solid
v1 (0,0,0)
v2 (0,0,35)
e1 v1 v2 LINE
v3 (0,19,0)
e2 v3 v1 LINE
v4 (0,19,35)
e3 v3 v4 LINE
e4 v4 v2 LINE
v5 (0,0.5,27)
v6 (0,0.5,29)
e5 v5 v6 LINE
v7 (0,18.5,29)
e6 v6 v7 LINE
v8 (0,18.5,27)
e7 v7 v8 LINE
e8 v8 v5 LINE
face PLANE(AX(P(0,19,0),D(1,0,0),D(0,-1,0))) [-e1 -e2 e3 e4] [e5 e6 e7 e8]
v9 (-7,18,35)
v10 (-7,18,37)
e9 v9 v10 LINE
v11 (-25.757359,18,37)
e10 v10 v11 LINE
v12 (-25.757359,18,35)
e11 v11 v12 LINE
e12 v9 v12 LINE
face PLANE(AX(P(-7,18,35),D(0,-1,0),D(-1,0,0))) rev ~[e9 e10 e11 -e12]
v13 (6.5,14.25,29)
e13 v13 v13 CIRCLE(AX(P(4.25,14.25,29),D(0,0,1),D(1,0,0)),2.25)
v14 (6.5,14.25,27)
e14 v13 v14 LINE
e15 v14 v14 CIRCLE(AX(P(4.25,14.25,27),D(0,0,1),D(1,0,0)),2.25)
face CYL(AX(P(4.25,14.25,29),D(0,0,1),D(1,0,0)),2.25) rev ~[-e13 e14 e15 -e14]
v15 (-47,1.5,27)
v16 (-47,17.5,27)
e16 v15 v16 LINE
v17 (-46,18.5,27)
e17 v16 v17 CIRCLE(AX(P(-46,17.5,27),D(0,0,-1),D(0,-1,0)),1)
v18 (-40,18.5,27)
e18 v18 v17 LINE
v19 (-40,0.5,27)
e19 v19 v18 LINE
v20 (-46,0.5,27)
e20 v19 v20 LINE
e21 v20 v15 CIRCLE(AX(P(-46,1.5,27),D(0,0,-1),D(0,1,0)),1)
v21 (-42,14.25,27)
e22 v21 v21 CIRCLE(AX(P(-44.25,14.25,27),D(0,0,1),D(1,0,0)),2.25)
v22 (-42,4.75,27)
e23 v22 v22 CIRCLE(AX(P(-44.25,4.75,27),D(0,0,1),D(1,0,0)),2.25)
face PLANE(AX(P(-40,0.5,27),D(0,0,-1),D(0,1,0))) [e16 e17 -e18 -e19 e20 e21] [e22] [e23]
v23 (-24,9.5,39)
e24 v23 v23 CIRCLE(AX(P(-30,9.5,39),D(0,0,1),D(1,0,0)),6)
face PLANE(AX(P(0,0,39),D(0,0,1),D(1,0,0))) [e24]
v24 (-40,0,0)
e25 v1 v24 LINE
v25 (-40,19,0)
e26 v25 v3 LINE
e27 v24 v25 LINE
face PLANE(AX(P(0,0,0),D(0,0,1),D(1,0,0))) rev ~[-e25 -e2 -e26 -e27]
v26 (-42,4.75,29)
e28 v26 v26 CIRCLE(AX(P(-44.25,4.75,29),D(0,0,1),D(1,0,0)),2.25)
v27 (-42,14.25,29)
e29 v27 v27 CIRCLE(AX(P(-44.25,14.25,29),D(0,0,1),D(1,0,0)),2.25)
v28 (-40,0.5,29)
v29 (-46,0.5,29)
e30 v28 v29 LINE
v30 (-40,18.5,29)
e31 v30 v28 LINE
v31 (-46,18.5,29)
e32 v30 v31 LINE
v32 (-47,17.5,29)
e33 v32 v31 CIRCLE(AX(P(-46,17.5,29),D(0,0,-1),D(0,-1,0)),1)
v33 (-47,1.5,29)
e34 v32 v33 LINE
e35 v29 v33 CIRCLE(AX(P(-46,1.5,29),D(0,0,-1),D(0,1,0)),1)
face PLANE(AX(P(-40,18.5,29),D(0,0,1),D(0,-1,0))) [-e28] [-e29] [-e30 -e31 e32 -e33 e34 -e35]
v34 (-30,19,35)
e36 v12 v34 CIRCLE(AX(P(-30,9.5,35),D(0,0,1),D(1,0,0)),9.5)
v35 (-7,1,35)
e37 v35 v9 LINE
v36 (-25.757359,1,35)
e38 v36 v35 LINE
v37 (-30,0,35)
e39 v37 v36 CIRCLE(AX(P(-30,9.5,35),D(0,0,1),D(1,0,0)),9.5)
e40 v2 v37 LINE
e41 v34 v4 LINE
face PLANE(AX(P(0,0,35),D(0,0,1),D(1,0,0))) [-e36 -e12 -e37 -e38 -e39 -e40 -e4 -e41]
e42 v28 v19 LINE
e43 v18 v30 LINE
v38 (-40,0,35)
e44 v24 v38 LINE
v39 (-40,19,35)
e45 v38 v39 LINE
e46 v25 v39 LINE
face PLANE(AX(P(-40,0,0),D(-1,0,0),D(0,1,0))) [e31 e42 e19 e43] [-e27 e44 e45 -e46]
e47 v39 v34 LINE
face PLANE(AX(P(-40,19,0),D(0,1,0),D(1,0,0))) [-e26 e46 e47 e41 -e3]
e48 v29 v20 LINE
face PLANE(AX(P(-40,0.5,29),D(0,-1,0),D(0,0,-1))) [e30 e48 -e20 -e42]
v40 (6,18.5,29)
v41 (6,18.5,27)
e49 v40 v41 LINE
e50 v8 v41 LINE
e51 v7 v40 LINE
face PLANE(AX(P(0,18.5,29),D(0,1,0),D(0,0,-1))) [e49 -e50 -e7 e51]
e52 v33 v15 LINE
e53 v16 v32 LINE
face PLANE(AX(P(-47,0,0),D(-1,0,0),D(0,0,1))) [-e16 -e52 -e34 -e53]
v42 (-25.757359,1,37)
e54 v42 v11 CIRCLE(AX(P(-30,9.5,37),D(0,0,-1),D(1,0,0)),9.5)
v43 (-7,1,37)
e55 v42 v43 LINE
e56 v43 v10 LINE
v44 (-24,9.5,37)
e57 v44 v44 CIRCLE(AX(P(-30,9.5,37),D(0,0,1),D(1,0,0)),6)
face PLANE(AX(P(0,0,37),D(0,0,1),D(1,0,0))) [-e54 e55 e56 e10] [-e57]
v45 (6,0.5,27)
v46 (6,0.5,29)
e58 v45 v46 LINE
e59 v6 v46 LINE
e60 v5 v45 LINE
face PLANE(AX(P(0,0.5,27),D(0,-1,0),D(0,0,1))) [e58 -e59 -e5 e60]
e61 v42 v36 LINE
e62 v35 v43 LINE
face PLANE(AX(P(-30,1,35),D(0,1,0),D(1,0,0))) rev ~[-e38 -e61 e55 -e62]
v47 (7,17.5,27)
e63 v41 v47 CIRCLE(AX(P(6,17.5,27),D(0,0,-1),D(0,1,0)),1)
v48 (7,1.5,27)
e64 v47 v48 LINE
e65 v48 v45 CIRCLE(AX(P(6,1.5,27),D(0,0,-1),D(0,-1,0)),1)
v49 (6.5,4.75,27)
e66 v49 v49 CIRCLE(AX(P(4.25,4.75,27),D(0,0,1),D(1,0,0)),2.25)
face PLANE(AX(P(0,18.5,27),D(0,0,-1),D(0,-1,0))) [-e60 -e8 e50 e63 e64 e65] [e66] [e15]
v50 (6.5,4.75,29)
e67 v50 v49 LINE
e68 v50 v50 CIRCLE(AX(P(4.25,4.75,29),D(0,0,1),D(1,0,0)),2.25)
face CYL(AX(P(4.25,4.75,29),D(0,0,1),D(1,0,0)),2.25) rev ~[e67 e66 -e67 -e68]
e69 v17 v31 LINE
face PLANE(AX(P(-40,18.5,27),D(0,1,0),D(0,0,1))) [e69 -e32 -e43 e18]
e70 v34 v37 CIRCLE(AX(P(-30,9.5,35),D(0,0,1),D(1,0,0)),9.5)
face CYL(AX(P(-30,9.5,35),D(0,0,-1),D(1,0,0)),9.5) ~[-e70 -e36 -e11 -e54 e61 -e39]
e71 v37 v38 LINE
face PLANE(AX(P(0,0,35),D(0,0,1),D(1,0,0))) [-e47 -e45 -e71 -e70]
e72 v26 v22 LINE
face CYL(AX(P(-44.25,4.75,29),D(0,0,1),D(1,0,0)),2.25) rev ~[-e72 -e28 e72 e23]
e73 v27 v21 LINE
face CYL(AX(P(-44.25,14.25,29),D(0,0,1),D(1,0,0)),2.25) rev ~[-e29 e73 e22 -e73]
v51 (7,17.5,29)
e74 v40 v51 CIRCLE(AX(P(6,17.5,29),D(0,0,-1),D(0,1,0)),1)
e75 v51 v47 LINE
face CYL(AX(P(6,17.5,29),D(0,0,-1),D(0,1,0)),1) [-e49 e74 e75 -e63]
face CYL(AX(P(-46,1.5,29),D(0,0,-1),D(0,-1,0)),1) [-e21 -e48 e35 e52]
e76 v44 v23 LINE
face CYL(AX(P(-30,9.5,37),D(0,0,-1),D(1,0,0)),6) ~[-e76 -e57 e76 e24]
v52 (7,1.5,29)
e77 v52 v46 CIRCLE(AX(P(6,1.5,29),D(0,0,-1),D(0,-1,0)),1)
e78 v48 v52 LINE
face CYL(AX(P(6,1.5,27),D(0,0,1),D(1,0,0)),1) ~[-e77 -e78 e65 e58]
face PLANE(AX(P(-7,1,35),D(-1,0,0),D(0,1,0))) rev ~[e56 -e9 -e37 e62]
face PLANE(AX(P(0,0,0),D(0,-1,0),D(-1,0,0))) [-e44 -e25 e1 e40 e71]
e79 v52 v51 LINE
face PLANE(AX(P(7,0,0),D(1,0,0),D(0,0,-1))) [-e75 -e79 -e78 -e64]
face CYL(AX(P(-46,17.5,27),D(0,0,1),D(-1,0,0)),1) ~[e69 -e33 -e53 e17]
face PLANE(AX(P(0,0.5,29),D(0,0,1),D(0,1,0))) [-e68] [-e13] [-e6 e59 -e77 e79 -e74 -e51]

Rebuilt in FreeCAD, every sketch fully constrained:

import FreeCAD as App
import Part
import Sketcher
from FreeCAD import Vector


def edges_at(feature, points):
    """Names of the edges that pass closest to the given points."""
    edges = feature.Shape.Edges
    near = lambda p: min(range(len(edges)), key=lambda i: edges[i].distToShape(Part.Vertex(*p))[0])
    return sorted({f"Edge{near(p) + 1}" for p in points})

doc = App.newDocument("Part")
params = doc.addObject("Spreadsheet::Sheet", "Params")
for row, (alias, value) in enumerate([
    ("sketch1_width", "40 mm"),
    ("sketch1_height", "19 mm"),
    ("pad1_length", "35 mm"),
    ("sketch2_diameter", "19 mm"),
    ("pad2_length", "2 mm"),
    ("sketch3_height", "17 mm"),
    ("sketch3_width", "23 mm"),
    ("pad3_length", "2 mm"),
    ("sketch4_diameter", "12 mm"),
    ("pad4_length", "2 mm"),
    ("sketch5_width", "18 mm"),
    ("sketch5_height", "2 mm"),
    ("pad5_length", "7 mm"),
    ("sketch6_diameter", "4.5 mm"),
    ("pocket1_length", "2 mm"),
    ("sketch7_diameter", "4.5 mm"),
    ("pocket2_length", "2 mm"),
    ("fillet_radius", "1 mm"),
    ("fillet2_radius", "1 mm"),
    ("sketch8_width", "18 mm"),
    ("sketch8_height", "2 mm"),
    ("pad6_length", "7 mm"),
    ("sketch9_diameter", "4.5 mm"),
    ("pocket3_length", "2 mm"),
    ("sketch10_diameter", "4.5 mm"),
    ("pocket4_length", "2 mm"),
    ("fillet3_radius", "1 mm"),
    ("fillet4_radius", "1 mm"),
], start=1):
    params.set(f"A{row}", alias)
    params.set(f"B{row}", "=" + value)
    params.setAlias(f"B{row}", alias)

body = doc.addObject("PartDesign::Body", "Body")

# Sketch on XY plane
sketch1 = doc.addObject("Sketcher::SketchObject", "Sketch")
body.addObject(sketch1)
sketch1.AttachmentSupport = (doc.XY_Plane, [""])
sketch1.MapMode = "FlatFace"
sketch1.addGeometry([
    Part.LineSegment(Vector(-40, 0, 0), Vector(0, 0, 0)),
    Part.LineSegment(Vector(0, 0, 0), Vector(0, 19, 0)),
    Part.LineSegment(Vector(0, 19, 0), Vector(-40, 19, 0)),
    Part.LineSegment(Vector(-40, 19, 0), Vector(-40, 0, 0)),
], False)
sketch1.addConstraint([
    Sketcher.Constraint("Coincident", 0, 2, 1, 1),
    Sketcher.Constraint("Coincident", 1, 2, 2, 1),
    Sketcher.Constraint("Coincident", 2, 2, 3, 1),
    Sketcher.Constraint("Coincident", 3, 2, 0, 1),
    Sketcher.Constraint("Horizontal", 0),
    Sketcher.Constraint("Vertical", 1),
    Sketcher.Constraint("Horizontal", 2),
    Sketcher.Constraint("Vertical", 3),
    Sketcher.Constraint("Coincident", 0, 2, -1, 1),
    Sketcher.Constraint("DistanceX", 0, 1, 0, 2, 40.0),
    Sketcher.Constraint("DistanceY", 1, 1, 1, 2, 19.0),
])
sketch1.setExpression("Constraints[9]", "Params.sketch1_width")
sketch1.setExpression("Constraints[10]", "Params.sketch1_height")
pad1 = doc.addObject("PartDesign::Pad", "Pad")
body.addObject(pad1)
pad1.Profile = sketch1
pad1.setExpression("Length", "Params.pad1_length")

# Sketch on XY plane
sketch2 = doc.addObject("Sketcher::SketchObject", "Sketch001")
body.addObject(sketch2)
sketch2.AttachmentSupport = (doc.XY_Plane, [""])
sketch2.MapMode = "FlatFace"
sketch2.AttachmentOffset = App.Placement(Vector(0, 0, 35), App.Rotation())
sketch2.addGeometry(Part.Circle(Vector(-30, 9.5, 0), Vector(0, 0, 1), 9.5), False)
sketch2.addConstraint([
    Sketcher.Constraint("Diameter", 0, 19.0),
    Sketcher.Constraint("DistanceX", 0, 3, -1, 1, 30.0),
    Sketcher.Constraint("DistanceY", -1, 1, 0, 3, 9.5),
])
sketch2.setExpression("Constraints[0]", "Params.sketch2_diameter")
pad2 = doc.addObject("PartDesign::Pad", "Pad001")
body.addObject(pad2)
pad2.Profile = sketch2
pad2.setExpression("Length", "Params.pad2_length")

# Sketch on XY plane
sketch3 = doc.addObject("Sketcher::SketchObject", "Sketch002")
body.addObject(sketch3)
sketch3.AttachmentSupport = (doc.XY_Plane, [""])
sketch3.MapMode = "FlatFace"
sketch3.AttachmentOffset = App.Placement(Vector(0, 0, 35), App.Rotation())
sketch3.addGeometry([
    Part.LineSegment(Vector(-30, 1, 0), Vector(-7, 1, 0)),
    Part.LineSegment(Vector(-7, 1, 0), Vector(-7, 18, 0)),
    Part.LineSegment(Vector(-7, 18, 0), Vector(-30, 18, 0)),
    Part.LineSegment(Vector(-30, 18, 0), Vector(-30, 1, 0)),
], False)
sketch3.addConstraint([
    Sketcher.Constraint("Coincident", 0, 2, 1, 1),
    Sketcher.Constraint("Coincident", 1, 2, 2, 1),
    Sketcher.Constraint("Coincident", 2, 2, 3, 1),
    Sketcher.Constraint("Coincident", 3, 2, 0, 1),
    Sketcher.Constraint("Horizontal", 0),
    Sketcher.Constraint("Vertical", 1),
    Sketcher.Constraint("Horizontal", 2),
    Sketcher.Constraint("Vertical", 3),
    Sketcher.Constraint("DistanceY", 1, 1, 1, 2, 17.0),
    Sketcher.Constraint("DistanceX", 0, 1, 0, 2, 23.0),
    Sketcher.Constraint("DistanceX", 0, 2, -1, 1, 7.0),
    Sketcher.Constraint("DistanceY", -1, 1, 0, 2, 1.0),
])
sketch3.setExpression("Constraints[8]", "Params.sketch3_height")
sketch3.setExpression("Constraints[9]", "Params.sketch3_width")
pad3 = doc.addObject("PartDesign::Pad", "Pad002")
body.addObject(pad3)
pad3.Profile = sketch3
pad3.setExpression("Length", "Params.pad3_length")

# Sketch on XY plane
sketch4 = doc.addObject("Sketcher::SketchObject", "Sketch003")
body.addObject(sketch4)
sketch4.AttachmentSupport = (doc.XY_Plane, [""])
sketch4.MapMode = "FlatFace"
sketch4.AttachmentOffset = App.Placement(Vector(0, 0, 37), App.Rotation())
sketch4.addGeometry(Part.Circle(Vector(-30, 9.5, 0), Vector(0, 0, 1), 6), False)
sketch4.addConstraint([
    Sketcher.Constraint("Diameter", 0, 12.0),
    Sketcher.Constraint("DistanceX", 0, 3, -1, 1, 30.0),
    Sketcher.Constraint("DistanceY", -1, 1, 0, 3, 9.5),
])
sketch4.setExpression("Constraints[0]", "Params.sketch4_diameter")
pad4 = doc.addObject("PartDesign::Pad", "Pad003")
body.addObject(pad4)
pad4.Profile = sketch4
pad4.setExpression("Length", "Params.pad4_length")

# Sketch on YZ plane
sketch5 = doc.addObject("Sketcher::SketchObject", "Sketch004")
body.addObject(sketch5)
sketch5.AttachmentSupport = (doc.YZ_Plane, [""])
sketch5.MapMode = "FlatFace"
sketch5.AttachmentOffset = App.Placement(Vector(0, 0, -40), App.Rotation())
sketch5.addGeometry([
    Part.LineSegment(Vector(18.5, 29, 0), Vector(18.5, 27, 0)),
    Part.LineSegment(Vector(18.5, 27, 0), Vector(0.5, 27, 0)),
    Part.LineSegment(Vector(0.5, 27, 0), Vector(0.5, 29, 0)),
    Part.LineSegment(Vector(0.5, 29, 0), Vector(18.5, 29, 0)),
], False)
sketch5.addConstraint([
    Sketcher.Constraint("Coincident", 0, 2, 1, 1),
    Sketcher.Constraint("Coincident", 1, 2, 2, 1),
    Sketcher.Constraint("Coincident", 2, 2, 3, 1),
    Sketcher.Constraint("Coincident", 3, 2, 0, 1),
    Sketcher.Constraint("Vertical", 0),
    Sketcher.Constraint("Horizontal", 1),
    Sketcher.Constraint("Vertical", 2),
    Sketcher.Constraint("Horizontal", 3),
    Sketcher.Constraint("DistanceX", 1, 2, 1, 1, 18.0),
    Sketcher.Constraint("DistanceY", 0, 2, 0, 1, 2.0),
    Sketcher.Constraint("DistanceY", -1, 1, 0, 2, 27.0),
    Sketcher.Constraint("DistanceX", -1, 1, 0, 2, 18.5),
])
sketch5.setExpression("Constraints[8]", "Params.sketch5_width")
sketch5.setExpression("Constraints[9]", "Params.sketch5_height")
pad5 = doc.addObject("PartDesign::Pad", "Pad004")
body.addObject(pad5)
pad5.Profile = sketch5
pad5.setExpression("Length", "Params.pad5_length")
pad5.Reversed = True

# Sketch on XY plane
sketch6 = doc.addObject("Sketcher::SketchObject", "Sketch005")
body.addObject(sketch6)
sketch6.AttachmentSupport = (doc.XY_Plane, [""])
sketch6.MapMode = "FlatFace"
sketch6.AttachmentOffset = App.Placement(Vector(0, 0, 29), App.Rotation())
sketch6.addGeometry(Part.Circle(Vector(-44.25, 4.75, 0), Vector(0, 0, 1), 2.25), False)
sketch6.addConstraint([
    Sketcher.Constraint("Diameter", 0, 4.5),
    Sketcher.Constraint("DistanceX", 0, 3, -1, 1, 44.25),
    Sketcher.Constraint("DistanceY", -1, 1, 0, 3, 4.75),
])
sketch6.setExpression("Constraints[0]", "Params.sketch6_diameter")
pocket1 = doc.addObject("PartDesign::Pocket", "Pocket")
body.addObject(pocket1)
pocket1.Profile = sketch6
pocket1.setExpression("Length", "Params.pocket1_length")

# Sketch on XY plane
sketch7 = doc.addObject("Sketcher::SketchObject", "Sketch006")
body.addObject(sketch7)
sketch7.AttachmentSupport = (doc.XY_Plane, [""])
sketch7.MapMode = "FlatFace"
sketch7.AttachmentOffset = App.Placement(Vector(0, 0, 29), App.Rotation())
sketch7.addGeometry(Part.Circle(Vector(-44.25, 14.25, 0), Vector(0, 0, 1), 2.25), False)
sketch7.addConstraint([
    Sketcher.Constraint("Diameter", 0, 4.5),
    Sketcher.Constraint("DistanceX", 0, 3, -1, 1, 44.25),
    Sketcher.Constraint("DistanceY", -1, 1, 0, 3, 14.25),
])
sketch7.setExpression("Constraints[0]", "Params.sketch7_diameter")
pocket2 = doc.addObject("PartDesign::Pocket", "Pocket001")
body.addObject(pocket2)
pocket2.Profile = sketch7
pocket2.setExpression("Length", "Params.pocket2_length")
doc.recompute()

fillet = doc.addObject("PartDesign::Fillet", "Fillet")
body.addObject(fillet)
fillet.Base = (pocket2, edges_at(pocket2, [(-47, 0.5, 28)]))
fillet.setExpression("Radius", "Params.fillet_radius")
doc.recompute()

fillet2 = doc.addObject("PartDesign::Fillet", "Fillet001")
body.addObject(fillet2)
fillet2.Base = (fillet, edges_at(fillet, [(-47, 18.5, 28)]))
fillet2.setExpression("Radius", "Params.fillet2_radius")

# Sketch on YZ plane
sketch8 = doc.addObject("Sketcher::SketchObject", "Sketch007")
body.addObject(sketch8)
sketch8.AttachmentSupport = (doc.YZ_Plane, [""])
sketch8.MapMode = "FlatFace"
sketch8.addGeometry([
    Part.LineSegment(Vector(0.5, 29, 0), Vector(0.5, 27, 0)),
    Part.LineSegment(Vector(0.5, 27, 0), Vector(18.5, 27, 0)),
    Part.LineSegment(Vector(18.5, 27, 0), Vector(18.5, 29, 0)),
    Part.LineSegment(Vector(18.5, 29, 0), Vector(0.5, 29, 0)),
], False)
sketch8.addConstraint([
    Sketcher.Constraint("Coincident", 0, 2, 1, 1),
    Sketcher.Constraint("Coincident", 1, 2, 2, 1),
    Sketcher.Constraint("Coincident", 2, 2, 3, 1),
    Sketcher.Constraint("Coincident", 3, 2, 0, 1),
    Sketcher.Constraint("Vertical", 0),
    Sketcher.Constraint("Horizontal", 1),
    Sketcher.Constraint("Vertical", 2),
    Sketcher.Constraint("Horizontal", 3),
    Sketcher.Constraint("DistanceX", 1, 1, 1, 2, 18.0),
    Sketcher.Constraint("DistanceY", 0, 2, 0, 1, 2.0),
    Sketcher.Constraint("DistanceY", -1, 1, 0, 2, 27.0),
    Sketcher.Constraint("DistanceX", -1, 1, 0, 2, 0.5),
])
sketch8.setExpression("Constraints[8]", "Params.sketch8_width")
sketch8.setExpression("Constraints[9]", "Params.sketch8_height")
pad6 = doc.addObject("PartDesign::Pad", "Pad005")
body.addObject(pad6)
pad6.Profile = sketch8
pad6.setExpression("Length", "Params.pad6_length")

# Sketch on XY plane
sketch9 = doc.addObject("Sketcher::SketchObject", "Sketch008")
body.addObject(sketch9)
sketch9.AttachmentSupport = (doc.XY_Plane, [""])
sketch9.MapMode = "FlatFace"
sketch9.AttachmentOffset = App.Placement(Vector(0, 0, 29), App.Rotation())
sketch9.addGeometry(Part.Circle(Vector(4.25, 4.75, 0), Vector(0, 0, 1), 2.25), False)
sketch9.addConstraint([
    Sketcher.Constraint("Diameter", 0, 4.5),
    Sketcher.Constraint("DistanceX", -1, 1, 0, 3, 4.25),
    Sketcher.Constraint("DistanceY", -1, 1, 0, 3, 4.75),
])
sketch9.setExpression("Constraints[0]", "Params.sketch9_diameter")
pocket3 = doc.addObject("PartDesign::Pocket", "Pocket002")
body.addObject(pocket3)
pocket3.Profile = sketch9
pocket3.setExpression("Length", "Params.pocket3_length")

# Sketch on XY plane
sketch10 = doc.addObject("Sketcher::SketchObject", "Sketch009")
body.addObject(sketch10)
sketch10.AttachmentSupport = (doc.XY_Plane, [""])
sketch10.MapMode = "FlatFace"
sketch10.AttachmentOffset = App.Placement(Vector(0, 0, 29), App.Rotation())
sketch10.addGeometry(Part.Circle(Vector(4.25, 14.25, 0), Vector(0, 0, 1), 2.25), False)
sketch10.addConstraint([
    Sketcher.Constraint("Diameter", 0, 4.5),
    Sketcher.Constraint("DistanceX", -1, 1, 0, 3, 4.25),
    Sketcher.Constraint("DistanceY", -1, 1, 0, 3, 14.25),
])
sketch10.setExpression("Constraints[0]", "Params.sketch10_diameter")
pocket4 = doc.addObject("PartDesign::Pocket", "Pocket003")
body.addObject(pocket4)
pocket4.Profile = sketch10
pocket4.setExpression("Length", "Params.pocket4_length")
doc.recompute()

fillet3 = doc.addObject("PartDesign::Fillet", "Fillet002")
body.addObject(fillet3)
fillet3.Base = (pocket4, edges_at(pocket4, [(7, 18.5, 28)]))
fillet3.setExpression("Radius", "Params.fillet3_radius")
doc.recompute()

fillet4 = doc.addObject("PartDesign::Fillet", "Fillet003")
body.addObject(fillet4)
fillet4.Base = (fillet3, edges_at(fillet3, [(7, 0.5, 28)]))
fillet4.setExpression("Radius", "Params.fillet4_radius")

doc.recompute()
